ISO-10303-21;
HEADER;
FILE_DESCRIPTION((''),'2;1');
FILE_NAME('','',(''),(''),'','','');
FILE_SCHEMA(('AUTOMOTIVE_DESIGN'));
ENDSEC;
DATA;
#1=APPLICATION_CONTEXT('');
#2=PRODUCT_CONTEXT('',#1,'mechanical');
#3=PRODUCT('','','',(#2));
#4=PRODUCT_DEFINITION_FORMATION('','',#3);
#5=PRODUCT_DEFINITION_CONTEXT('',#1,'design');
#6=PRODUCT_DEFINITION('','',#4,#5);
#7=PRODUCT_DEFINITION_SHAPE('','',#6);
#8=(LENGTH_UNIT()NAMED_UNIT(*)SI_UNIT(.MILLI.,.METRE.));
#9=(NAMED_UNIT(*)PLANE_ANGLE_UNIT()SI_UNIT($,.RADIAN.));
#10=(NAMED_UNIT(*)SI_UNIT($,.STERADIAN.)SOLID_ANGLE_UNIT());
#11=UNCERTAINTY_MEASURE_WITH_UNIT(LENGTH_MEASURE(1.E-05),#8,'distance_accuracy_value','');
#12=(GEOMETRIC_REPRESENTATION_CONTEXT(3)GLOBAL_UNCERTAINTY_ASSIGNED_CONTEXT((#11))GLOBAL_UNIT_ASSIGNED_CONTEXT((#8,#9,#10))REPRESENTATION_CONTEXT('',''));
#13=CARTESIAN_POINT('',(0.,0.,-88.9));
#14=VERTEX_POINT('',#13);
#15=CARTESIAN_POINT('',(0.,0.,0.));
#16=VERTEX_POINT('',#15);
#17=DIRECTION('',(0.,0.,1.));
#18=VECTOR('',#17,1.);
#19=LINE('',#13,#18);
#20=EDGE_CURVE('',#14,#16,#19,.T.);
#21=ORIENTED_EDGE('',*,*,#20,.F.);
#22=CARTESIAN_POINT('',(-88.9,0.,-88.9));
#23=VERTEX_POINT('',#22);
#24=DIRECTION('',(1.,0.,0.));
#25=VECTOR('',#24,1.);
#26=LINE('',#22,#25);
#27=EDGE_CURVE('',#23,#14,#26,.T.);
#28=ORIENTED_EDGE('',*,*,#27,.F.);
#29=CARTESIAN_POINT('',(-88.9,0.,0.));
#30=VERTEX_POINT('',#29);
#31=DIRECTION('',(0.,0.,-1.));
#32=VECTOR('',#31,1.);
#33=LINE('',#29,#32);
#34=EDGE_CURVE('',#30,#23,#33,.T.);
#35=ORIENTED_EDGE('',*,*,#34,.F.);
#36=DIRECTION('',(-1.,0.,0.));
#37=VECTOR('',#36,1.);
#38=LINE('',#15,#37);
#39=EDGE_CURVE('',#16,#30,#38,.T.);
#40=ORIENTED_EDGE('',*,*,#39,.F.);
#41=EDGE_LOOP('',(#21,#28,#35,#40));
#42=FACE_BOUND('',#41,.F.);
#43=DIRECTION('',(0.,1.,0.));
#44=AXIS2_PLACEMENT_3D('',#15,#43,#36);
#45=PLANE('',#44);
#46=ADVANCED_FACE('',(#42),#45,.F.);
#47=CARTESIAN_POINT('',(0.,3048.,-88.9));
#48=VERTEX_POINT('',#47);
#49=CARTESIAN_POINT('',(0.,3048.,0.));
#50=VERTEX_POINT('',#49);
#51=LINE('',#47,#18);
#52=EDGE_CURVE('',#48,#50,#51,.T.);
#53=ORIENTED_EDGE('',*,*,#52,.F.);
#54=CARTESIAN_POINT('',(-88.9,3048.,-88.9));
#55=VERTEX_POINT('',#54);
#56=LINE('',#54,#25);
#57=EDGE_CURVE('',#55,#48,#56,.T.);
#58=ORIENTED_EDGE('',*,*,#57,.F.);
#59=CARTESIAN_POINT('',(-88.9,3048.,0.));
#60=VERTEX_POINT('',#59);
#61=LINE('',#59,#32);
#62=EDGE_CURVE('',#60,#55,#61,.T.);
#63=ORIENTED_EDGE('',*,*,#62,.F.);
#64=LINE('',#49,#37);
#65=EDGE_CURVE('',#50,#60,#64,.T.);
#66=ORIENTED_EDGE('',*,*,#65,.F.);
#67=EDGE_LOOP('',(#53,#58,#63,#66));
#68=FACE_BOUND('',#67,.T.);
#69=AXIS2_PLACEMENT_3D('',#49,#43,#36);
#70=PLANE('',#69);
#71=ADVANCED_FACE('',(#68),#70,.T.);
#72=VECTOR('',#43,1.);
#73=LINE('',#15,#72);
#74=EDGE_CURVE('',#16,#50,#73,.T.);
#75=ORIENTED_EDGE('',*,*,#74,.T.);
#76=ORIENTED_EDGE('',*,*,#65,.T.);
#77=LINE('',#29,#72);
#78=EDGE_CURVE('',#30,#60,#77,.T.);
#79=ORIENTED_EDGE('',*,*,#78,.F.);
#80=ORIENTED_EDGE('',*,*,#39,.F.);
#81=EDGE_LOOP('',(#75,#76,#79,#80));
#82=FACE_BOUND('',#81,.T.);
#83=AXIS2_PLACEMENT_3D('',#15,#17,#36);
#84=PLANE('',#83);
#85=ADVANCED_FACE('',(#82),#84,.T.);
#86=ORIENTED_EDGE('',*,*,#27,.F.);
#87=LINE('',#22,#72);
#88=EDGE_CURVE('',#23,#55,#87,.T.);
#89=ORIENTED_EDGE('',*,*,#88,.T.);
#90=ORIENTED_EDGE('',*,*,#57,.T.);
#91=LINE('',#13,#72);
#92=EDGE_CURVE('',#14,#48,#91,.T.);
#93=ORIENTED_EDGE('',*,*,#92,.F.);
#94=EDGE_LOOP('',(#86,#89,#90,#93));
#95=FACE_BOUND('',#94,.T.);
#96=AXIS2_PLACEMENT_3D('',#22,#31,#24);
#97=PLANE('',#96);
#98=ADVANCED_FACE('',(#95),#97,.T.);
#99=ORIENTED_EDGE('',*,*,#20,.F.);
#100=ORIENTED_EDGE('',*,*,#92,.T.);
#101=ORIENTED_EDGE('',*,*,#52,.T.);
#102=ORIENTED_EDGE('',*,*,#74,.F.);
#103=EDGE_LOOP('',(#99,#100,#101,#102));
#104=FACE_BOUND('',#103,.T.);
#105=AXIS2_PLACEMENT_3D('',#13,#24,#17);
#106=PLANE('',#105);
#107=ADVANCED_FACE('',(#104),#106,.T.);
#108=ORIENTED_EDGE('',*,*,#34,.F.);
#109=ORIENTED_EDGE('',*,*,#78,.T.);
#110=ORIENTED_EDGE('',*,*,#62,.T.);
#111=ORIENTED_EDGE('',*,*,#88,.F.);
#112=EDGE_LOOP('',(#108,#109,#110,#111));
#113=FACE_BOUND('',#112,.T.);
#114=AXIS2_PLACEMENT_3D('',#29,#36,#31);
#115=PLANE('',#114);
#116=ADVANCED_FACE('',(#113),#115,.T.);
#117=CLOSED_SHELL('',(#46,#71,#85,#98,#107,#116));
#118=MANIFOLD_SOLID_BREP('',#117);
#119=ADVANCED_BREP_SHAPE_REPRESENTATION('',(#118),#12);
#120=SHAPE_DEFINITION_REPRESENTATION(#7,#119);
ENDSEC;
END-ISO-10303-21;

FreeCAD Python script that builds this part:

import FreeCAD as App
import Part
import Sketcher

V = App.Vector
Q = App.Units.Quantity


def add_polygon(sketch, points):
    """Adds a closed chain of lines whose ends are joined by coincident constraints."""
    first, n = sketch.GeometryCount, len(points)
    for a, b in zip(points, points[1:] + points[:1]):
        sketch.addGeometry(Part.LineSegment(App.Vector(*a, 0), App.Vector(*b, 0)), False)
    for i in range(n):
        sketch.addConstraint(Sketcher.Constraint("Coincident", first + i, 2, first + (i + 1) % n, 1))

doc = App.newDocument("Part")
body = doc.addObject("PartDesign::Body", "Body")

# Sketch on XZ plane
sketch1 = body.newObject("Sketcher::SketchObject", "Sketch")
sketch1.AttachmentSupport = (doc.getObject("XZ_Plane"), [""])
sketch1.MapMode = "FlatFace"
add_polygon(sketch1, [(-89, 0), (0, 0), (0, -89), (-89, -89)])  # lines 0-3
sketch1.addConstraint([
    Sketcher.Constraint("Horizontal", 0),
    Sketcher.Constraint("Vertical", 1),
    Sketcher.Constraint("Horizontal", 2),
    Sketcher.Constraint("Vertical", 3),
    Sketcher.Constraint("Coincident", 0, 2, -1, 1),
    Sketcher.Constraint("Equal", 2, 1),
    Sketcher.Constraint("DistanceX", 0, 1, 0, 2, Q("3.5 in")),
])
pad1 = body.newObject("PartDesign::Pad", "Pad")
pad1.Profile = sketch1
pad1.Length = Q("120 in")
pad1.Reversed = True

doc.recompute()
